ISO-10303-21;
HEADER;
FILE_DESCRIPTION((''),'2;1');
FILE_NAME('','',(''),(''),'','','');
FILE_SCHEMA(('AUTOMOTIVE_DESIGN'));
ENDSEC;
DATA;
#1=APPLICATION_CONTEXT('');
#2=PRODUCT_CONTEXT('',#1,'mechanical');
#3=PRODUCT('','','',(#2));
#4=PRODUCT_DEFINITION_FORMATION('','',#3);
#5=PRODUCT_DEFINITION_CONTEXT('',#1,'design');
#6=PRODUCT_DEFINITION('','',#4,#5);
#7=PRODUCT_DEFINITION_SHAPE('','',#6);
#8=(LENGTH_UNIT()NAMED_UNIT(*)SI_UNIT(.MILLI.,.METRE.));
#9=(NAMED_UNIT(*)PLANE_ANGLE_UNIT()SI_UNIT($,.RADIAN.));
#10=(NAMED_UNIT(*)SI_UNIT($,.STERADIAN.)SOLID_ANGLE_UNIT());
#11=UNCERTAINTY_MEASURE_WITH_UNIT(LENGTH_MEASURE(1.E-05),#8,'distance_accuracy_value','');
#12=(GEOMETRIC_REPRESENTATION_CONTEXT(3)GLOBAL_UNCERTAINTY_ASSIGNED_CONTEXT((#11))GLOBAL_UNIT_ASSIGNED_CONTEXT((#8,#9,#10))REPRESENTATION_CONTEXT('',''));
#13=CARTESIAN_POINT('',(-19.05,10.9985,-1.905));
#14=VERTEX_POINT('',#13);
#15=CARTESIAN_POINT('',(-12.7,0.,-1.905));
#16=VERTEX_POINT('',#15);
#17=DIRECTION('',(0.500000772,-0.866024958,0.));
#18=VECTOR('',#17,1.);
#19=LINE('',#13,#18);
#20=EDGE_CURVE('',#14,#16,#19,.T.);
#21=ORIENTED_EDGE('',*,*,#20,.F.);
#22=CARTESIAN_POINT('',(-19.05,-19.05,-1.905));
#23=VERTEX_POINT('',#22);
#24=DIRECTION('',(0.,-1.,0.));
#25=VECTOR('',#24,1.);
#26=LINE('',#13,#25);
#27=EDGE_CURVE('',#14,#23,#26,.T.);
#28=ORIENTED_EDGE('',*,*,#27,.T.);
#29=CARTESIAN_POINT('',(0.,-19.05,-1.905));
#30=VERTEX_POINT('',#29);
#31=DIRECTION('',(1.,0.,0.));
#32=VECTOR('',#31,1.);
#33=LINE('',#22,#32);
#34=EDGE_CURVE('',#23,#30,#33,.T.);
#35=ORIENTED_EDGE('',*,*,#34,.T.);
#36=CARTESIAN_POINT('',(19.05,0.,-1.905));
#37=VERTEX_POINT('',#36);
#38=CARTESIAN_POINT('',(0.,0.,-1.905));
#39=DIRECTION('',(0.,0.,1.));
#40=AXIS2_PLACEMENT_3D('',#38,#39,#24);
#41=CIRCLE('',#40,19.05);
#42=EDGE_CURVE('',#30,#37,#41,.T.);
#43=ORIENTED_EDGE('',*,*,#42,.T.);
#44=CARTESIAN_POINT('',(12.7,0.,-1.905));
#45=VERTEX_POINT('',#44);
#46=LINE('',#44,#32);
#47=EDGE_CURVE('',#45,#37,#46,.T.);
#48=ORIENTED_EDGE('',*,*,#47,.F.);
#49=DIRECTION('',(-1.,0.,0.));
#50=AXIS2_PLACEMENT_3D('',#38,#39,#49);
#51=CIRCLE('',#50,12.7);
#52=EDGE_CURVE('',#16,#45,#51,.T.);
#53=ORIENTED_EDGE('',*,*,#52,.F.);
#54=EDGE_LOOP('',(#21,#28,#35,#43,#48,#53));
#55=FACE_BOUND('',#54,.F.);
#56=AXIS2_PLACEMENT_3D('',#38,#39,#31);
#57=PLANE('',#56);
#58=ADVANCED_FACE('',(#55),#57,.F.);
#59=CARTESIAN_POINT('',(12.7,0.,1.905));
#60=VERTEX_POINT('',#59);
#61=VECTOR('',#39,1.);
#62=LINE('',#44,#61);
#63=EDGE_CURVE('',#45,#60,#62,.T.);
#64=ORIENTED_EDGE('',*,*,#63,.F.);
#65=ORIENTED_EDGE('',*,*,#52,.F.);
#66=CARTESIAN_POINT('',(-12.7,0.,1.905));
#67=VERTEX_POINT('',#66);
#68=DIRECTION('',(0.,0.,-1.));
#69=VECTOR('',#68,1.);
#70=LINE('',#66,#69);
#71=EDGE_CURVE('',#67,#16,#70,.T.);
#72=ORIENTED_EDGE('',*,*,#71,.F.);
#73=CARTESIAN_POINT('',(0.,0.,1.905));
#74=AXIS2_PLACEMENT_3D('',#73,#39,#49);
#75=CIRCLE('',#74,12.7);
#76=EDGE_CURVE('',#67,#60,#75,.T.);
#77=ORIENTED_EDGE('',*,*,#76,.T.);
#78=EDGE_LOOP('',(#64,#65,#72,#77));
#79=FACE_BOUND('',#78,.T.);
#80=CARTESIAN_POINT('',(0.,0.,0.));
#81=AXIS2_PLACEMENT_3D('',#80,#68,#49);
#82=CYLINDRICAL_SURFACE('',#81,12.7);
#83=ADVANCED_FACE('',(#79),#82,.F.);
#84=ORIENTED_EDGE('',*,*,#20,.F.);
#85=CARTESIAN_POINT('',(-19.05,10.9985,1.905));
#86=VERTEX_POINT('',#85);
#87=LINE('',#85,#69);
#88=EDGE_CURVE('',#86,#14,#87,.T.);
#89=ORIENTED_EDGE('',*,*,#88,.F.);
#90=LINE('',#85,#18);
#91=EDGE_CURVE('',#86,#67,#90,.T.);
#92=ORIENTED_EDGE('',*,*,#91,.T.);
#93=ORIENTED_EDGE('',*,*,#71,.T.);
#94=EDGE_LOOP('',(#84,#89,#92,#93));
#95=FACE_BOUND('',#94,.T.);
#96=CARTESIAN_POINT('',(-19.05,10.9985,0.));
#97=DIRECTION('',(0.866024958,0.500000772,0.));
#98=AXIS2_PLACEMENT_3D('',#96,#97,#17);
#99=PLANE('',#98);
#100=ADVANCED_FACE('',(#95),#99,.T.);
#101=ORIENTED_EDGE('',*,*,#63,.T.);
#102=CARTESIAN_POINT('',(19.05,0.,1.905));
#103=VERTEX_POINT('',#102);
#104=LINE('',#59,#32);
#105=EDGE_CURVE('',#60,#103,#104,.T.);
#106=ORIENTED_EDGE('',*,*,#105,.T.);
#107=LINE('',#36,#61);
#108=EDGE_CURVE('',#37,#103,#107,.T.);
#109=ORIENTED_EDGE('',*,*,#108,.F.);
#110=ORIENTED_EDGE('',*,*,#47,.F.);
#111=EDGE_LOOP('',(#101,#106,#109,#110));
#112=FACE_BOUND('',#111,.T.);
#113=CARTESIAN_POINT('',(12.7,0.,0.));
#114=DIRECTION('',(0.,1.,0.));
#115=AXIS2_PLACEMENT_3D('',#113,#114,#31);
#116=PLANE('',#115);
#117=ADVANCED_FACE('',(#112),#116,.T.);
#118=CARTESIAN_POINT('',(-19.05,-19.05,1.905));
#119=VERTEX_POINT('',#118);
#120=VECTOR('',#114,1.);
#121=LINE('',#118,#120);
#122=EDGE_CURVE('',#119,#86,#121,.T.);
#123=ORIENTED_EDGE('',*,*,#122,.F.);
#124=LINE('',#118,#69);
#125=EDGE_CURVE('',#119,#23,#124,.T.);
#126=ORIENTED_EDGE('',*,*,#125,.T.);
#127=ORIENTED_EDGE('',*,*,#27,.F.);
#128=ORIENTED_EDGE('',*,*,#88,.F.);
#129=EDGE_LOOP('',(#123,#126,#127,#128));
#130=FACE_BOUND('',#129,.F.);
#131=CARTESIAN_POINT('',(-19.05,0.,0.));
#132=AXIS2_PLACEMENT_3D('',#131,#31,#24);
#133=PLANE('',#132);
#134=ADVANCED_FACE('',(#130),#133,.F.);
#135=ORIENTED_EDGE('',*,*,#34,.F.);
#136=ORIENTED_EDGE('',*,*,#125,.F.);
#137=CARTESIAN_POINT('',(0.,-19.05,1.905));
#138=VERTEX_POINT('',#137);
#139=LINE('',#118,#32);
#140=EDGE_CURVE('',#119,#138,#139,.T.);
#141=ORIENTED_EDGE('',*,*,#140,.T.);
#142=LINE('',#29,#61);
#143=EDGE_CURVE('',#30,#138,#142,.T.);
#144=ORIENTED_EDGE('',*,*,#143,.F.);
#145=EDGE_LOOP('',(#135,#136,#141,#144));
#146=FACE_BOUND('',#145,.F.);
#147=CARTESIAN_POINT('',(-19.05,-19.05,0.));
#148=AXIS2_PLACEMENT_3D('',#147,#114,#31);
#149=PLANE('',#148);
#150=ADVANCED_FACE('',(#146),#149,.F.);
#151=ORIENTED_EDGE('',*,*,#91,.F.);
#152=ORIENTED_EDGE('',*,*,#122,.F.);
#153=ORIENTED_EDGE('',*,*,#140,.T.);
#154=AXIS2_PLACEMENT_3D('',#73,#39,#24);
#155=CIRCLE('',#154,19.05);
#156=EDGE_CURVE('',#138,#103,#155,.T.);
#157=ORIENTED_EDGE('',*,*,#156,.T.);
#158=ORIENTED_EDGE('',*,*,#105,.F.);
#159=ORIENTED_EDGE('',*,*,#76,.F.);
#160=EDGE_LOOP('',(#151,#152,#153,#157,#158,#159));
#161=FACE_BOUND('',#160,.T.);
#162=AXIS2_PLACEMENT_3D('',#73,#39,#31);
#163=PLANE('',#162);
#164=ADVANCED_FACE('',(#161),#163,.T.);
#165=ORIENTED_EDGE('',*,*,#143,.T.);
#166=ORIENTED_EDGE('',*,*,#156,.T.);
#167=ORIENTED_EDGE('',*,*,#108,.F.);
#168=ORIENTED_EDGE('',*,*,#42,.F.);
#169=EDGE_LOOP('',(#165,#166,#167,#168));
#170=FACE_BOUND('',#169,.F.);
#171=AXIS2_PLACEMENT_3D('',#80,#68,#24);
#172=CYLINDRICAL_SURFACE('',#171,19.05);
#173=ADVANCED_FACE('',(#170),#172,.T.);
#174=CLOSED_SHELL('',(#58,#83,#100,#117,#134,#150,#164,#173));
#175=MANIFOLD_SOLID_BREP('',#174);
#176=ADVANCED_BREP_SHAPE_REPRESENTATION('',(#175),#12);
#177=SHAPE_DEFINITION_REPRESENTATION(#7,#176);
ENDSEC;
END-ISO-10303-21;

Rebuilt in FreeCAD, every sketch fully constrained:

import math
import FreeCAD as App
import Part
import Sketcher

V = App.Vector
Q = App.Units.Quantity


def add_polygon(sketch, points):
    """Adds a closed chain of lines whose ends are joined by coincident constraints."""
    first, n = sketch.GeometryCount, len(points)
    for a, b in zip(points, points[1:] + points[:1]):
        sketch.addGeometry(Part.LineSegment(App.Vector(*a, 0), App.Vector(*b, 0)), False)
    for i in range(n):
        sketch.addConstraint(Sketcher.Constraint("Coincident", first + i, 2, first + (i + 1) % n, 1))

doc = App.newDocument("Part")
body = doc.addObject("PartDesign::Body", "Body")

# Sketch on XY plane
sketch1 = doc.addObject("Sketcher::SketchObject", "Sketch")
body.addObject(sketch1)
sketch1.AttachmentSupport = (doc.XY_Plane, [""])
sketch1.MapMode = "FlatFace"
sketch1.addGeometry([
    Part.LineSegment(V(-19, -19, 0), V(0, -19, 0)),  # 0
    Part.ArcOfCircle(Part.Circle(V(0, 0, 0), V(0, 0, 1), 19), math.radians(-90), math.radians(0)),  # 1
    Part.LineSegment(V(19, 0, 0), V(13, 0, 0)),  # 2
    Part.ArcOfCircle(Part.Circle(V(0, 0, 0), V(0, 0, 1), 13), math.radians(180), math.radians(360)),  # 3
    Part.LineSegment(V(-13, 0, 0), V(-19, 0, 0)),  # 4
    Part.LineSegment(V(-19, 0, 0), V(-19, -19, 0)),  # 5
], False)
sketch1.addConstraint([
    Sketcher.Constraint("Tangent", 0, 2, 1, 1),
    Sketcher.Constraint("Coincident", 1, 2, 2, 1),
    Sketcher.Constraint("Coincident", 2, 2, 3, 2),
    Sketcher.Constraint("Coincident", 3, 1, 4, 1),
    Sketcher.Constraint("Coincident", 4, 2, 5, 1),
    Sketcher.Constraint("Coincident", 5, 2, 0, 1),
    Sketcher.Constraint("Horizontal", 0),
    Sketcher.Constraint("Horizontal", 2),
    Sketcher.Constraint("Horizontal", 4),
    Sketcher.Constraint("Vertical", 5),
    Sketcher.Constraint("Coincident", 1, 3, -1, 1),
    Sketcher.Constraint("Coincident", 3, 3, -1, 1),
    Sketcher.Constraint("Symmetric", 1, 2, 4, 2, -1, 1),
    Sketcher.Constraint("PointOnObject", 1, 2, -1),
    Sketcher.Constraint("Radius", 3, Q("0.5 in")),
    Sketcher.Constraint("Radius", 1, Q("0.75 in")),
])
pad1 = doc.addObject("PartDesign::Pad", "Pad")
body.addObject(pad1)
pad1.Profile = sketch1
pad1.Length = Q("0.15 in")
pad1.Midplane = True

# Sketch on XY plane
sketch2 = doc.addObject("Sketcher::SketchObject", "Sketch001")
body.addObject(sketch2)
sketch2.AttachmentSupport = (doc.XY_Plane, [""])
sketch2.MapMode = "FlatFace"
add_polygon(sketch2, [(-19, 11), (-19, 0), (-13, 0)])  # lines 0-2
sketch2.addConstraint([
    Sketcher.Constraint("Vertical", 0),
    Sketcher.Constraint("Horizontal", 1),
    Sketcher.Constraint("PointOnObject", 0, 2, -1),
    Sketcher.Constraint("Angle", 2, Q("120 deg")),
    Sketcher.Constraint("Distance", 2, Q("0.5 in")),
    Sketcher.Constraint("DistanceX", 1, 2, -1, 1, Q("0.5 in")),
])
pad2 = doc.addObject("PartDesign::Pad", "Pad001")
body.addObject(pad2)
pad2.Profile = sketch2
pad2.Length = Q("0.15 in")
pad2.Midplane = True

doc.recompute()
